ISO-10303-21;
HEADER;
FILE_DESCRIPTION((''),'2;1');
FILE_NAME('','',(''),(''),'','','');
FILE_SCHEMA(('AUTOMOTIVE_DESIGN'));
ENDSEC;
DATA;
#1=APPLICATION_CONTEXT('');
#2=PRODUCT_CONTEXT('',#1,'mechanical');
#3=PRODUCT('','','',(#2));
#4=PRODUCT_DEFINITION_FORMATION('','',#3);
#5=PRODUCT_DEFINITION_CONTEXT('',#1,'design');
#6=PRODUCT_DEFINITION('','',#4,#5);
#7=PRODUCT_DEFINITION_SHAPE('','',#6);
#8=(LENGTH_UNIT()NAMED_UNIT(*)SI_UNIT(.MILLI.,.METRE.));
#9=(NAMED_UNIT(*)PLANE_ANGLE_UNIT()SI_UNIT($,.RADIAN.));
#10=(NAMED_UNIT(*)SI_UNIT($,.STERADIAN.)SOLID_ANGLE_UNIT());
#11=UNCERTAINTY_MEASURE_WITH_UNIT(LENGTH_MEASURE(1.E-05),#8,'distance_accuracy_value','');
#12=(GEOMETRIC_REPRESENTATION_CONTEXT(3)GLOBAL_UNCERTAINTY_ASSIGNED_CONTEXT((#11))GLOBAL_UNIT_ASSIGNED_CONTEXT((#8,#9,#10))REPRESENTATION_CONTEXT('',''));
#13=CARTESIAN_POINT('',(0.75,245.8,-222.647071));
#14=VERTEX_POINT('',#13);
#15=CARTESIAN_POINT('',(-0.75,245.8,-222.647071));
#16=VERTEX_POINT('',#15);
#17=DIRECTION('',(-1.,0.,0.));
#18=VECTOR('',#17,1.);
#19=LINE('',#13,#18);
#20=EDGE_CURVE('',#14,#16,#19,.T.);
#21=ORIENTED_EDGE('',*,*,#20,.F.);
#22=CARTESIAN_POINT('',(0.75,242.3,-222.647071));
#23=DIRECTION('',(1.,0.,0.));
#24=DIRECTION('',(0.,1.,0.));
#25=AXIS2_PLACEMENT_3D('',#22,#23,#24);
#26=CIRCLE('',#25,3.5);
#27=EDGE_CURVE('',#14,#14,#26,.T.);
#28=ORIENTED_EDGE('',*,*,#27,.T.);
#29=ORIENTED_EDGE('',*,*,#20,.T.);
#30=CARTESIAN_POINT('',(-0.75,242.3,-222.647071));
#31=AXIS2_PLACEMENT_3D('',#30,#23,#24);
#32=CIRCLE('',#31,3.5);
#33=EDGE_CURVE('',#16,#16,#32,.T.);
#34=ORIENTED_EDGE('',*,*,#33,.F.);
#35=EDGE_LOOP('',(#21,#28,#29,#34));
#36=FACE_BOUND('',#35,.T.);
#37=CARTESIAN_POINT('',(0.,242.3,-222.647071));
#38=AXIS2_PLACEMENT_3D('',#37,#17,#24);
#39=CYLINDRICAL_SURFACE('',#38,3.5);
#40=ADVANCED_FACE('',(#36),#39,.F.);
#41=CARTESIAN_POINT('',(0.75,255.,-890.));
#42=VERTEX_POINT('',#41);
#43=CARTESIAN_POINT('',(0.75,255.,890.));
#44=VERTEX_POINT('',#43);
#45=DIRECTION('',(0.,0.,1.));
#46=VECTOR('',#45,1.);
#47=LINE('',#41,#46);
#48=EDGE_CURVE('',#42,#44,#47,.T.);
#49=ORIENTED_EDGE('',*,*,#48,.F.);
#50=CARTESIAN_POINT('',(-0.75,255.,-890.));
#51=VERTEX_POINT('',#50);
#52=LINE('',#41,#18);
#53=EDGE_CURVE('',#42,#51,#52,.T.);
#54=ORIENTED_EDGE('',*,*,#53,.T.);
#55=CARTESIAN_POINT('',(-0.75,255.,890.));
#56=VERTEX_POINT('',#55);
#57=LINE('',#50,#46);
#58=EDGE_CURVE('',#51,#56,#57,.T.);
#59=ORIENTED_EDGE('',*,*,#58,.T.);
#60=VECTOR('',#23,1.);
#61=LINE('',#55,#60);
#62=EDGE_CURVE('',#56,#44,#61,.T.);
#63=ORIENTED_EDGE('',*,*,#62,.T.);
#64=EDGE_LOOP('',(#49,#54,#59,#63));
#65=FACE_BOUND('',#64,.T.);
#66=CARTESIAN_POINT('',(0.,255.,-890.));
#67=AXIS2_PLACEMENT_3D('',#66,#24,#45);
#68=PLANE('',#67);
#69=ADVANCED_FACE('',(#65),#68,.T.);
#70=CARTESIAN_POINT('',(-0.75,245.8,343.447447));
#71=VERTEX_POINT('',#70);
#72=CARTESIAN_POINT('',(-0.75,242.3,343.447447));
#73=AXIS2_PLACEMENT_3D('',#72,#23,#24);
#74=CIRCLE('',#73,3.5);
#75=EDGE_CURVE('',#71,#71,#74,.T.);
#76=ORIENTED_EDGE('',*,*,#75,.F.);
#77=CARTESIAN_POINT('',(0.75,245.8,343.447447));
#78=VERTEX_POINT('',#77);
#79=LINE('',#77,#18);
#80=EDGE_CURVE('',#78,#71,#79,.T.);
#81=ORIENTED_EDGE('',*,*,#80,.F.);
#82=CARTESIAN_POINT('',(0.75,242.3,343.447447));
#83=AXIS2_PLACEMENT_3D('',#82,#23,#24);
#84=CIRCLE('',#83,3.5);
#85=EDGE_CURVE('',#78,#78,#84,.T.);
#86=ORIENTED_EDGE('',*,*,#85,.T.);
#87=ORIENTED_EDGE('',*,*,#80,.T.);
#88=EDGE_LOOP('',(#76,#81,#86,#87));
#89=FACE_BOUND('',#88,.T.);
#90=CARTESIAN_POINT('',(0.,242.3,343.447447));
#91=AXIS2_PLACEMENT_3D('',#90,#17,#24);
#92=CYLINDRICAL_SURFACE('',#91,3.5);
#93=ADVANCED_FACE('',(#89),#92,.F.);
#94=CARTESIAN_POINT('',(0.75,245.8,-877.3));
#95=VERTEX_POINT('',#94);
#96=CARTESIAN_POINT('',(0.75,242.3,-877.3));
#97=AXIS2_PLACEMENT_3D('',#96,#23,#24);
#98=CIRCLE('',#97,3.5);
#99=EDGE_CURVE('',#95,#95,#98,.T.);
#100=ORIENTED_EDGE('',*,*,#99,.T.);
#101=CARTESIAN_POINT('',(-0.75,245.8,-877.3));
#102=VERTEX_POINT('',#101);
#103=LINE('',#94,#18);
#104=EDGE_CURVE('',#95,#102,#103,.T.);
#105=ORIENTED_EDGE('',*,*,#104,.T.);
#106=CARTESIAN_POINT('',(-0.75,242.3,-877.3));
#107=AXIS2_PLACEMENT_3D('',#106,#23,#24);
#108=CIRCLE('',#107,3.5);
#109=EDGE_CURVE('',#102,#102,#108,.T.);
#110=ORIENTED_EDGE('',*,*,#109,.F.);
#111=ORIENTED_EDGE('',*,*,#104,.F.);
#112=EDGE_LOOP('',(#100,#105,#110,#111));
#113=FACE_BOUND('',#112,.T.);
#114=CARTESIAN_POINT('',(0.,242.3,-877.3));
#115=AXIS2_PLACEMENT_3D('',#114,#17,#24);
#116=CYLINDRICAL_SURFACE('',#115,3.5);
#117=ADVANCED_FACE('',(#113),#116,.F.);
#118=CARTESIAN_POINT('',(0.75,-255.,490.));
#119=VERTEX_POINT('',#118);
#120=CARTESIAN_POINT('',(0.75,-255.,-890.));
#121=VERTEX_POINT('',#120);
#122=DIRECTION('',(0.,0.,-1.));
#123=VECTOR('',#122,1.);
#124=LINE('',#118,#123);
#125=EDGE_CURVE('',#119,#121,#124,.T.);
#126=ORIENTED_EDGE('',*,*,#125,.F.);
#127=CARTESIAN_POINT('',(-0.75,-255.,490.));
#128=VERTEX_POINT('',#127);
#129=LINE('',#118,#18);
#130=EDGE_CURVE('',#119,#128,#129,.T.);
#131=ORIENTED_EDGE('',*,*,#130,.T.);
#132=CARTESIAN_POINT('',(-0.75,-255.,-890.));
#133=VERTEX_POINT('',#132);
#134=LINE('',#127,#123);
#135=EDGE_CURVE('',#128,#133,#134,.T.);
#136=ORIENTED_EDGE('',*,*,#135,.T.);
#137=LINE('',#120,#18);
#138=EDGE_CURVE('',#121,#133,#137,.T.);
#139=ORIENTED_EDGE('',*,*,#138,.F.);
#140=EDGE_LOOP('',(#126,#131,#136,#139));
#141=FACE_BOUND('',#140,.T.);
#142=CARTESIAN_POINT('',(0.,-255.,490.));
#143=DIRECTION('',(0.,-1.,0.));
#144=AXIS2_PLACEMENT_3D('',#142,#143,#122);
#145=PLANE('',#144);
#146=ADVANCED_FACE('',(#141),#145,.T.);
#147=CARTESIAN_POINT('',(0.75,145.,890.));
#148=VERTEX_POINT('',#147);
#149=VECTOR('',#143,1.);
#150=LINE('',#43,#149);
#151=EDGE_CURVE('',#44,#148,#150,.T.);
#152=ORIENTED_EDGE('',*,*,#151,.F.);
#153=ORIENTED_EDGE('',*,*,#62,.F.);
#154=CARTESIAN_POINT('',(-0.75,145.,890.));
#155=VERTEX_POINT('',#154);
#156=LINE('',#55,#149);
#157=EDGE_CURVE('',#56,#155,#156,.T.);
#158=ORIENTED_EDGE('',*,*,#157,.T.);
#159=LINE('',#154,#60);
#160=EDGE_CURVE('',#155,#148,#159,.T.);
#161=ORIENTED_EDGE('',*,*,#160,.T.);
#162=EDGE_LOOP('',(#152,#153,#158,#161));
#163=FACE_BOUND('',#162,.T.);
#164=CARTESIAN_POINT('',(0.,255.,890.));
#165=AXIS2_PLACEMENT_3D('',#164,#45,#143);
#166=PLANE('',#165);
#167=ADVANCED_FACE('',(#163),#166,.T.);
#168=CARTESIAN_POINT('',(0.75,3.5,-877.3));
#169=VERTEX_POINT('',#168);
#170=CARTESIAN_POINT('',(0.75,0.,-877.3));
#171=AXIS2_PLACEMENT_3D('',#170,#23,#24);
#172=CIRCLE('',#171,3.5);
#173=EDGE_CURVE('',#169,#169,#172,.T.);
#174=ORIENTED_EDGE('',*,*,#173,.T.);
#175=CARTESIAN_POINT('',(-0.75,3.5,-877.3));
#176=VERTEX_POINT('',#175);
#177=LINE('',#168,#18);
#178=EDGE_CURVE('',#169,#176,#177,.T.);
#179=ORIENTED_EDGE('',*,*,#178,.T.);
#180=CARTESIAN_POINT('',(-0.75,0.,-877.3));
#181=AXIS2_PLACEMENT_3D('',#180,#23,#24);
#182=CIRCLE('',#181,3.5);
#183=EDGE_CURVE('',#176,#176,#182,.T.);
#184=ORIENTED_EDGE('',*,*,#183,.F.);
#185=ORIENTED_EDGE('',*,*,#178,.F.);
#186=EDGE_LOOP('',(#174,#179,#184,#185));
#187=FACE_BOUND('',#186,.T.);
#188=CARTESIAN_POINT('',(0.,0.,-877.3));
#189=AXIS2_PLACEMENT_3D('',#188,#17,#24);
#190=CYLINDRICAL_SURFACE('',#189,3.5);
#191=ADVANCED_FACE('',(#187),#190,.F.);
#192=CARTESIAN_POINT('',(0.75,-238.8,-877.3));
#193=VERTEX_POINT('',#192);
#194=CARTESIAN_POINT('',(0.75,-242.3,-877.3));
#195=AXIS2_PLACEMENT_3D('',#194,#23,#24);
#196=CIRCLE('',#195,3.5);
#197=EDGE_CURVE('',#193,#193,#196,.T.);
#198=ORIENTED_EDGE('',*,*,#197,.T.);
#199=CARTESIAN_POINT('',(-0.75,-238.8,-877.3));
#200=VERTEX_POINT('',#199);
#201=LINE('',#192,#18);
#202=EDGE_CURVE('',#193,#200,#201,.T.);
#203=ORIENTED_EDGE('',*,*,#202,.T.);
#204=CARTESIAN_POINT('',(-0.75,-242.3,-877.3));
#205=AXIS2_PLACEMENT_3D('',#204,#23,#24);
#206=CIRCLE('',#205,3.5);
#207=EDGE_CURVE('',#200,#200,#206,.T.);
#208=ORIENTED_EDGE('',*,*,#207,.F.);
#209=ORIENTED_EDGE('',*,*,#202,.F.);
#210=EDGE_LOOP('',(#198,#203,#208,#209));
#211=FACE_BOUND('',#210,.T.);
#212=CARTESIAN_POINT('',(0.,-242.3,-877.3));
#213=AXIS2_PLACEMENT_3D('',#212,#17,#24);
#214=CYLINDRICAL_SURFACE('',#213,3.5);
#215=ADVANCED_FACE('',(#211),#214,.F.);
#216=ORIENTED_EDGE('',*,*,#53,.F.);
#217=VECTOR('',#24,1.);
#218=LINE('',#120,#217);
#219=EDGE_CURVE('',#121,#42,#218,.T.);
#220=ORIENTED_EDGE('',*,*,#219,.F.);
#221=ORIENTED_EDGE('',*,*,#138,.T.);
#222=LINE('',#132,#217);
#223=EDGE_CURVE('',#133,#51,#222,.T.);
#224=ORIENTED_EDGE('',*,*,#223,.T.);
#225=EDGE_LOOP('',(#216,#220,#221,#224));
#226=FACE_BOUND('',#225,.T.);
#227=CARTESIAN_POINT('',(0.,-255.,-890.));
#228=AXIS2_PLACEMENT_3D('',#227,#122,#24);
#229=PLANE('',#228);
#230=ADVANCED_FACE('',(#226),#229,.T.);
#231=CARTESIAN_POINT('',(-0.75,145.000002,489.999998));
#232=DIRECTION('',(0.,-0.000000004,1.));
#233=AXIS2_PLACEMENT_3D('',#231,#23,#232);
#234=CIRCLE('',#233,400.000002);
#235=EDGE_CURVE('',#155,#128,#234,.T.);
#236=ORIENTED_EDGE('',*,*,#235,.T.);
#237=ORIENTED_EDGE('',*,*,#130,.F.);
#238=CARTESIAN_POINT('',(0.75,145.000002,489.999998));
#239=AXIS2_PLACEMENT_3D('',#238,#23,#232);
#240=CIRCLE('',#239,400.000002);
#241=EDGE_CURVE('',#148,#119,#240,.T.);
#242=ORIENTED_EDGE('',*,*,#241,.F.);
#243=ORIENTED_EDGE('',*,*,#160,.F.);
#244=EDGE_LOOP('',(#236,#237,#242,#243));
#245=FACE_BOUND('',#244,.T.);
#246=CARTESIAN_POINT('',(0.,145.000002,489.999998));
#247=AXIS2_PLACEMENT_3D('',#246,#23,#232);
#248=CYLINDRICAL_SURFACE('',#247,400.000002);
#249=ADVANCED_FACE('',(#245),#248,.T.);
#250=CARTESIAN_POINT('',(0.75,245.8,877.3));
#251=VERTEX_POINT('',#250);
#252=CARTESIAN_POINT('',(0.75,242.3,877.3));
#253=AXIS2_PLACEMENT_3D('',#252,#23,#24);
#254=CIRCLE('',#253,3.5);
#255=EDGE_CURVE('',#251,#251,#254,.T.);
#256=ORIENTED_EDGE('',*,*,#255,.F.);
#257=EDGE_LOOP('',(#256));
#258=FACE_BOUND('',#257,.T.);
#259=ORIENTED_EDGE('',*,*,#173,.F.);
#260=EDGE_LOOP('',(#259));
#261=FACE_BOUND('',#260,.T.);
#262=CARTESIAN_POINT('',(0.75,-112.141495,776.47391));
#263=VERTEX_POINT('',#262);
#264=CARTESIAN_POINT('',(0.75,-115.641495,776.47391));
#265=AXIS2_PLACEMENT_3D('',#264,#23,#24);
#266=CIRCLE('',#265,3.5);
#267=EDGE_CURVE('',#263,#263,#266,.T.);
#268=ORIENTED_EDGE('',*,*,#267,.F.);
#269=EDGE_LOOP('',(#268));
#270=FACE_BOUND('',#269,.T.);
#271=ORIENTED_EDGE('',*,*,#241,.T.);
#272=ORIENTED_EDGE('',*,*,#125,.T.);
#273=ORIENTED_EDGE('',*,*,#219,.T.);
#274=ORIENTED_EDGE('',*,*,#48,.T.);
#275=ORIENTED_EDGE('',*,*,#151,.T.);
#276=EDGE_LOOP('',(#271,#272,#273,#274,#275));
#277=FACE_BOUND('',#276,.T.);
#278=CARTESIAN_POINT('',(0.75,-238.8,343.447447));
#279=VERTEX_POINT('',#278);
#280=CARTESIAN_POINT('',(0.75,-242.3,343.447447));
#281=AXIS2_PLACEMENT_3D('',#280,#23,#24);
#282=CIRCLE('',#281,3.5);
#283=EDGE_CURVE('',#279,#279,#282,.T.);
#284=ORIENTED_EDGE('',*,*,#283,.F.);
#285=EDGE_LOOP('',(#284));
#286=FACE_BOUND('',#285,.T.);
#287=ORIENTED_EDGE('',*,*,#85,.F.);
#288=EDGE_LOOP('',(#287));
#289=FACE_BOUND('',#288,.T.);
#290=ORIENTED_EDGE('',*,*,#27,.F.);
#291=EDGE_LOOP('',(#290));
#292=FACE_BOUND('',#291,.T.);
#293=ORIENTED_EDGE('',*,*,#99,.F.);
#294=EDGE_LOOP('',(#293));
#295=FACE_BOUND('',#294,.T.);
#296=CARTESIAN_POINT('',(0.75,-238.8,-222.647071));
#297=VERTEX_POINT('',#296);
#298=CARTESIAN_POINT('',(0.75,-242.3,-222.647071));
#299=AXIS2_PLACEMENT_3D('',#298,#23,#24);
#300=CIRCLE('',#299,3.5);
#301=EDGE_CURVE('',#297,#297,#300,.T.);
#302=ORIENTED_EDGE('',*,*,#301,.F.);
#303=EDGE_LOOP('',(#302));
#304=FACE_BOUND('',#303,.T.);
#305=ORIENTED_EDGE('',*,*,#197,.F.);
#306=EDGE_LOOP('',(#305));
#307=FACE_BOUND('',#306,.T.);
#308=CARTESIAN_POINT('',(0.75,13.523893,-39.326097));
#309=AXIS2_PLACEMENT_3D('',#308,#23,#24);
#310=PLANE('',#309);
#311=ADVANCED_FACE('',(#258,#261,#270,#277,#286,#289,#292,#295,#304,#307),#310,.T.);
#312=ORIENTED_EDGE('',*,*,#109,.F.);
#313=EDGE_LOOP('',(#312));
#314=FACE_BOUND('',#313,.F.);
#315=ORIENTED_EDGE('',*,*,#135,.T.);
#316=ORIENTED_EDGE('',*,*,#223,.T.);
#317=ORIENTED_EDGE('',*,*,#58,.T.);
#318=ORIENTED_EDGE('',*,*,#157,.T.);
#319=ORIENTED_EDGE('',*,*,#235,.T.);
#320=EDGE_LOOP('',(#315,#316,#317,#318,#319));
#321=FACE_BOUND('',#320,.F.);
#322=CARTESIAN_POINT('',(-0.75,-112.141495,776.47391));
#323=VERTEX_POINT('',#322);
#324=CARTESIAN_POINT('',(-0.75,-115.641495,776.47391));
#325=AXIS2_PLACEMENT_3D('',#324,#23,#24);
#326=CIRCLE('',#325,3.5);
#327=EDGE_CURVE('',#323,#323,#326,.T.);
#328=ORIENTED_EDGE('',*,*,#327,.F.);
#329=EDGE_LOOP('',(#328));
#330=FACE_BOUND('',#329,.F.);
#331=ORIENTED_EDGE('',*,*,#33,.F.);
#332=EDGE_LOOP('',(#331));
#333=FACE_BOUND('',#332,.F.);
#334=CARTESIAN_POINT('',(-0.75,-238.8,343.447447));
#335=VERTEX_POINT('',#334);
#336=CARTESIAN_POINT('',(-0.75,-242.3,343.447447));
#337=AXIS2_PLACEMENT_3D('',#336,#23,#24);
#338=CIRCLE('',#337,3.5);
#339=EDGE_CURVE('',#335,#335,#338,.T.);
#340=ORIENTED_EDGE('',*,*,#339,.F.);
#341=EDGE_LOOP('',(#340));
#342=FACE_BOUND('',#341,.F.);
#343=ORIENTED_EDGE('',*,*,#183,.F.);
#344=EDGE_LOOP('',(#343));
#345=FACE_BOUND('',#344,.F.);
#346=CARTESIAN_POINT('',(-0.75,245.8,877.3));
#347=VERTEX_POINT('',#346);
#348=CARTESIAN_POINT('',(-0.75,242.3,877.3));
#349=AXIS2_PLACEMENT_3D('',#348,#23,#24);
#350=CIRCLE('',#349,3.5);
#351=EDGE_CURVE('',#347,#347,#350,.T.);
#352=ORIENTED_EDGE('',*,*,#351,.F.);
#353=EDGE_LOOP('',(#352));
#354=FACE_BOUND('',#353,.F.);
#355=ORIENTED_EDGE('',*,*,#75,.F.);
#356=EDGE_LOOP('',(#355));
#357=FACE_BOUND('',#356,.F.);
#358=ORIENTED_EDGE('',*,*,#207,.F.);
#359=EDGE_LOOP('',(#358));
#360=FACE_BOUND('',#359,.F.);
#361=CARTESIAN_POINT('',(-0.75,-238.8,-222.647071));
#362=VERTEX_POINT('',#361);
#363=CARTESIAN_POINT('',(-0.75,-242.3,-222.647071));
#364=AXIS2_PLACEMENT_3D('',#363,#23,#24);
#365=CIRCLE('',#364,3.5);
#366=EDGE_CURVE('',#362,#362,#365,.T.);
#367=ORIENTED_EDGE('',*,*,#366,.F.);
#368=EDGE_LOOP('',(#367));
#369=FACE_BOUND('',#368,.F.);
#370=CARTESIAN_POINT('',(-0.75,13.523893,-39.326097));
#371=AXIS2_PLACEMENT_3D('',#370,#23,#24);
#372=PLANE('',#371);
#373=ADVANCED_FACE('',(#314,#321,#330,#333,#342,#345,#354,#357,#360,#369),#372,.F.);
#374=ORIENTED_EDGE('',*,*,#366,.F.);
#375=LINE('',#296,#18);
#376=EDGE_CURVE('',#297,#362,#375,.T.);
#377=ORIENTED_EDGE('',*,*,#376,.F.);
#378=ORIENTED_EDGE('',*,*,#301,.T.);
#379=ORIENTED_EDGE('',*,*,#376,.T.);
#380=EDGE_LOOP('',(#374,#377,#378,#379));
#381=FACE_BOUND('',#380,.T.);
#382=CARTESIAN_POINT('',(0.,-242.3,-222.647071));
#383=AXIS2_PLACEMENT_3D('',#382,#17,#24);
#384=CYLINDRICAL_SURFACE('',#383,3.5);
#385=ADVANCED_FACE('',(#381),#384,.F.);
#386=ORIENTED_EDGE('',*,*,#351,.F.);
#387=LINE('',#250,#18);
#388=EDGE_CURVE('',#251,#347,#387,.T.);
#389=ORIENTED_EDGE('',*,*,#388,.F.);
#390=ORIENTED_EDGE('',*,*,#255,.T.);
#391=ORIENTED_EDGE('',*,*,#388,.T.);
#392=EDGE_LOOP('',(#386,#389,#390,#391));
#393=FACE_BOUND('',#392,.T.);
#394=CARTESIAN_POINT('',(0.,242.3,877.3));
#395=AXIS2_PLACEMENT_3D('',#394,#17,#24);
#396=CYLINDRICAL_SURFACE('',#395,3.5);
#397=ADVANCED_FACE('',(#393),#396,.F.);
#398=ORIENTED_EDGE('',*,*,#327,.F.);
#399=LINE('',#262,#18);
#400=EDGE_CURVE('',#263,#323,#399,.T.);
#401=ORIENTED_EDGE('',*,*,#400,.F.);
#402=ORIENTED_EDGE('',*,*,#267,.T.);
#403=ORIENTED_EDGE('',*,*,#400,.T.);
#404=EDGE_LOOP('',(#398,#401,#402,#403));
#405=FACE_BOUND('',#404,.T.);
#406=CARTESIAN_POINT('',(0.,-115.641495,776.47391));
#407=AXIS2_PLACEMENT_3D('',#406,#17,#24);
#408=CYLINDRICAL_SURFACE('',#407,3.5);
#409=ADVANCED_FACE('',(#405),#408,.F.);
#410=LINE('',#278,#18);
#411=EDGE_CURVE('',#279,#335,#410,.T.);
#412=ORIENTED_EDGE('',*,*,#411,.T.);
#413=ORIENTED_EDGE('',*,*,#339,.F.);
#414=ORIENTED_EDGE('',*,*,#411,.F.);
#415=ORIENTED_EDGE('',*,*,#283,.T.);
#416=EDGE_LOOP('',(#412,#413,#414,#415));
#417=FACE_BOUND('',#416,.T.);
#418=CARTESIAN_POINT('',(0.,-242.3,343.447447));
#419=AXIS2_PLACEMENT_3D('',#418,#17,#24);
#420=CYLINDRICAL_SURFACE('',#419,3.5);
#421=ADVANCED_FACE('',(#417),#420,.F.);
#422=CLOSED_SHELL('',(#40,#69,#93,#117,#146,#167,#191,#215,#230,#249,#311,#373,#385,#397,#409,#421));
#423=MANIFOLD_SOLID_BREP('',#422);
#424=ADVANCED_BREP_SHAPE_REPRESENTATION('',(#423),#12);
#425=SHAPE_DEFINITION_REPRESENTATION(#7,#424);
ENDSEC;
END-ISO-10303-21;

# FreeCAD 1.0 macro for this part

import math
import FreeCAD as App
import Part
import Sketcher

doc = App.newDocument("Part")
body = doc.addObject("PartDesign::Body", "Body")

# Sketch on YZ plane
sketch1 = body.newObject("Sketcher::SketchObject", "Sketch")
sketch1.AttachmentSupport = (doc.getObject("YZ_Plane"), [""])
sketch1.MapMode = "FlatFace"
sketch1.addGeometry(Part.LineSegment(App.Vector(255, -890, 0), App.Vector(255, 890, 0)), False)
sketch1.addGeometry(Part.LineSegment(App.Vector(255, 890, 0), App.Vector(145, 890, 0)), False)
sketch1.addGeometry(Part.ArcOfCircle(Part.Circle(App.Vector(145, 490, 0), App.Vector(0, 0, 1), 400), math.radians(90), math.radians(180)), False)
sketch1.addGeometry(Part.LineSegment(App.Vector(-255, 490, 0), App.Vector(-255, -890, 0)), False)
sketch1.addGeometry(Part.LineSegment(App.Vector(-255, -890, 0), App.Vector(255, -890, 0)), False)
sketch1.addGeometry(Part.Circle(App.Vector(-242.3, -877.3, 0), App.Vector(0, 0, 1), 3.5), False)
sketch1.addGeometry(Part.Circle(App.Vector(-242.3, -222.6, 0), App.Vector(0, 0, 1), 3.5), False)
sketch1.addGeometry(Part.Circle(App.Vector(0, -877.3, 0), App.Vector(0, 0, 1), 3.5), False)
sketch1.addGeometry(Part.Circle(App.Vector(242.3, -877.3, 0), App.Vector(0, 0, 1), 3.5), False)
sketch1.addGeometry(Part.Circle(App.Vector(242.3, -222.6, 0), App.Vector(0, 0, 1), 3.5), False)
sketch1.addGeometry(Part.Circle(App.Vector(-242.3, 343.4, 0), App.Vector(0, 0, 1), 3.5), False)
sketch1.addGeometry(Part.Circle(App.Vector(-115.6, 776.5, 0), App.Vector(0, 0, 1), 3.5), False)
sketch1.addGeometry(Part.Circle(App.Vector(242.3, 343.4, 0), App.Vector(0, 0, 1), 3.5), False)
sketch1.addGeometry(Part.Circle(App.Vector(242.3, 877.3, 0), App.Vector(0, 0, 1), 3.5), False)
sketch1.addConstraint(Sketcher.Constraint("Coincident", 0, 2, 1, 1))
sketch1.addConstraint(Sketcher.Constraint("Tangent", 1, 2, 2, 1))
sketch1.addConstraint(Sketcher.Constraint("Tangent", 2, 2, 3, 1))
sketch1.addConstraint(Sketcher.Constraint("Coincident", 3, 2, 4, 1))
sketch1.addConstraint(Sketcher.Constraint("Coincident", 4, 2, 0, 1))
sketch1.addConstraint(Sketcher.Constraint("Vertical", 0))
sketch1.addConstraint(Sketcher.Constraint("Horizontal", 1))
sketch1.addConstraint(Sketcher.Constraint("Vertical", 3))
sketch1.addConstraint(Sketcher.Constraint("Horizontal", 4))
sketch1.addConstraint(Sketcher.Constraint("Equal", 5, 6))
sketch1.addConstraint(Sketcher.Constraint("Equal", 6, 7))
sketch1.addConstraint(Sketcher.Constraint("Equal", 7, 8))
sketch1.addConstraint(Sketcher.Constraint("Equal", 8, 9))
sketch1.addConstraint(Sketcher.Constraint("Equal", 9, 10))
sketch1.addConstraint(Sketcher.Constraint("Equal", 10, 11))
sketch1.addConstraint(Sketcher.Constraint("Equal", 11, 12))
sketch1.addConstraint(Sketcher.Constraint("Equal", 12, 13))
sketch1.addConstraint(Sketcher.Constraint("Symmetric", 5, 3, 13, 3, -1, 1))
sketch1.addConstraint(Sketcher.Constraint("Symmetric", 0, 2, 3, 2, -1, 1))
sketch1.addConstraint(Sketcher.Constraint("Symmetric", 5, 3, 8, 3, -2))
sketch1.addConstraint(Sketcher.Constraint("Symmetric", 6, 3, 9, 3, -2))
sketch1.addConstraint(Sketcher.Constraint("Symmetric", 10, 3, 12, 3, -2))
sketch1.addConstraint(Sketcher.Constraint("PointOnObject", 7, 3, -2))
sketch1.addConstraint(Sketcher.Constraint("Horizontal", 5, 3, 7, 3))
sketch1.addConstraint(Sketcher.Constraint("Vertical", 5, 3, 6, 3))
sketch1.addConstraint(Sketcher.Constraint("Vertical", 6, 3, 10, 3))
sketch1.addConstraint(Sketcher.Constraint("Diameter", 5, 7.0))
sketch1.addConstraint(Sketcher.Constraint("Radius", 2, 400.000002))
sketch1.addConstraint(Sketcher.Constraint("DistanceX", 1, 2, 1, 1, 110.0))
sketch1.addConstraint(Sketcher.Constraint("DistanceY", 0, 1, 0, 2, 1780.0))
sketch1.addConstraint(Sketcher.Constraint("DistanceX", 5, 3, -1, 1, 242.3))
sketch1.addConstraint(Sketcher.Constraint("DistanceY", 5, 3, -1, 1, 877.3))
sketch1.addConstraint(Sketcher.Constraint("DistanceY", 6, 3, -1, 1, 222.647071))
sketch1.addConstraint(Sketcher.Constraint("DistanceY", -1, 1, 11, 3, 776.47391))
sketch1.addConstraint(Sketcher.Constraint("DistanceY", 10, 3, 2, 3, 146.552551))
sketch1.addConstraint(Sketcher.Constraint("DistanceX", 11, 3, -1, 1, 115.641495))
pad1 = body.newObject("PartDesign::Pad", "Pad")
pad1.Profile = sketch1
pad1.Length = 1.5
pad1.Midplane = True

doc.recompute()
